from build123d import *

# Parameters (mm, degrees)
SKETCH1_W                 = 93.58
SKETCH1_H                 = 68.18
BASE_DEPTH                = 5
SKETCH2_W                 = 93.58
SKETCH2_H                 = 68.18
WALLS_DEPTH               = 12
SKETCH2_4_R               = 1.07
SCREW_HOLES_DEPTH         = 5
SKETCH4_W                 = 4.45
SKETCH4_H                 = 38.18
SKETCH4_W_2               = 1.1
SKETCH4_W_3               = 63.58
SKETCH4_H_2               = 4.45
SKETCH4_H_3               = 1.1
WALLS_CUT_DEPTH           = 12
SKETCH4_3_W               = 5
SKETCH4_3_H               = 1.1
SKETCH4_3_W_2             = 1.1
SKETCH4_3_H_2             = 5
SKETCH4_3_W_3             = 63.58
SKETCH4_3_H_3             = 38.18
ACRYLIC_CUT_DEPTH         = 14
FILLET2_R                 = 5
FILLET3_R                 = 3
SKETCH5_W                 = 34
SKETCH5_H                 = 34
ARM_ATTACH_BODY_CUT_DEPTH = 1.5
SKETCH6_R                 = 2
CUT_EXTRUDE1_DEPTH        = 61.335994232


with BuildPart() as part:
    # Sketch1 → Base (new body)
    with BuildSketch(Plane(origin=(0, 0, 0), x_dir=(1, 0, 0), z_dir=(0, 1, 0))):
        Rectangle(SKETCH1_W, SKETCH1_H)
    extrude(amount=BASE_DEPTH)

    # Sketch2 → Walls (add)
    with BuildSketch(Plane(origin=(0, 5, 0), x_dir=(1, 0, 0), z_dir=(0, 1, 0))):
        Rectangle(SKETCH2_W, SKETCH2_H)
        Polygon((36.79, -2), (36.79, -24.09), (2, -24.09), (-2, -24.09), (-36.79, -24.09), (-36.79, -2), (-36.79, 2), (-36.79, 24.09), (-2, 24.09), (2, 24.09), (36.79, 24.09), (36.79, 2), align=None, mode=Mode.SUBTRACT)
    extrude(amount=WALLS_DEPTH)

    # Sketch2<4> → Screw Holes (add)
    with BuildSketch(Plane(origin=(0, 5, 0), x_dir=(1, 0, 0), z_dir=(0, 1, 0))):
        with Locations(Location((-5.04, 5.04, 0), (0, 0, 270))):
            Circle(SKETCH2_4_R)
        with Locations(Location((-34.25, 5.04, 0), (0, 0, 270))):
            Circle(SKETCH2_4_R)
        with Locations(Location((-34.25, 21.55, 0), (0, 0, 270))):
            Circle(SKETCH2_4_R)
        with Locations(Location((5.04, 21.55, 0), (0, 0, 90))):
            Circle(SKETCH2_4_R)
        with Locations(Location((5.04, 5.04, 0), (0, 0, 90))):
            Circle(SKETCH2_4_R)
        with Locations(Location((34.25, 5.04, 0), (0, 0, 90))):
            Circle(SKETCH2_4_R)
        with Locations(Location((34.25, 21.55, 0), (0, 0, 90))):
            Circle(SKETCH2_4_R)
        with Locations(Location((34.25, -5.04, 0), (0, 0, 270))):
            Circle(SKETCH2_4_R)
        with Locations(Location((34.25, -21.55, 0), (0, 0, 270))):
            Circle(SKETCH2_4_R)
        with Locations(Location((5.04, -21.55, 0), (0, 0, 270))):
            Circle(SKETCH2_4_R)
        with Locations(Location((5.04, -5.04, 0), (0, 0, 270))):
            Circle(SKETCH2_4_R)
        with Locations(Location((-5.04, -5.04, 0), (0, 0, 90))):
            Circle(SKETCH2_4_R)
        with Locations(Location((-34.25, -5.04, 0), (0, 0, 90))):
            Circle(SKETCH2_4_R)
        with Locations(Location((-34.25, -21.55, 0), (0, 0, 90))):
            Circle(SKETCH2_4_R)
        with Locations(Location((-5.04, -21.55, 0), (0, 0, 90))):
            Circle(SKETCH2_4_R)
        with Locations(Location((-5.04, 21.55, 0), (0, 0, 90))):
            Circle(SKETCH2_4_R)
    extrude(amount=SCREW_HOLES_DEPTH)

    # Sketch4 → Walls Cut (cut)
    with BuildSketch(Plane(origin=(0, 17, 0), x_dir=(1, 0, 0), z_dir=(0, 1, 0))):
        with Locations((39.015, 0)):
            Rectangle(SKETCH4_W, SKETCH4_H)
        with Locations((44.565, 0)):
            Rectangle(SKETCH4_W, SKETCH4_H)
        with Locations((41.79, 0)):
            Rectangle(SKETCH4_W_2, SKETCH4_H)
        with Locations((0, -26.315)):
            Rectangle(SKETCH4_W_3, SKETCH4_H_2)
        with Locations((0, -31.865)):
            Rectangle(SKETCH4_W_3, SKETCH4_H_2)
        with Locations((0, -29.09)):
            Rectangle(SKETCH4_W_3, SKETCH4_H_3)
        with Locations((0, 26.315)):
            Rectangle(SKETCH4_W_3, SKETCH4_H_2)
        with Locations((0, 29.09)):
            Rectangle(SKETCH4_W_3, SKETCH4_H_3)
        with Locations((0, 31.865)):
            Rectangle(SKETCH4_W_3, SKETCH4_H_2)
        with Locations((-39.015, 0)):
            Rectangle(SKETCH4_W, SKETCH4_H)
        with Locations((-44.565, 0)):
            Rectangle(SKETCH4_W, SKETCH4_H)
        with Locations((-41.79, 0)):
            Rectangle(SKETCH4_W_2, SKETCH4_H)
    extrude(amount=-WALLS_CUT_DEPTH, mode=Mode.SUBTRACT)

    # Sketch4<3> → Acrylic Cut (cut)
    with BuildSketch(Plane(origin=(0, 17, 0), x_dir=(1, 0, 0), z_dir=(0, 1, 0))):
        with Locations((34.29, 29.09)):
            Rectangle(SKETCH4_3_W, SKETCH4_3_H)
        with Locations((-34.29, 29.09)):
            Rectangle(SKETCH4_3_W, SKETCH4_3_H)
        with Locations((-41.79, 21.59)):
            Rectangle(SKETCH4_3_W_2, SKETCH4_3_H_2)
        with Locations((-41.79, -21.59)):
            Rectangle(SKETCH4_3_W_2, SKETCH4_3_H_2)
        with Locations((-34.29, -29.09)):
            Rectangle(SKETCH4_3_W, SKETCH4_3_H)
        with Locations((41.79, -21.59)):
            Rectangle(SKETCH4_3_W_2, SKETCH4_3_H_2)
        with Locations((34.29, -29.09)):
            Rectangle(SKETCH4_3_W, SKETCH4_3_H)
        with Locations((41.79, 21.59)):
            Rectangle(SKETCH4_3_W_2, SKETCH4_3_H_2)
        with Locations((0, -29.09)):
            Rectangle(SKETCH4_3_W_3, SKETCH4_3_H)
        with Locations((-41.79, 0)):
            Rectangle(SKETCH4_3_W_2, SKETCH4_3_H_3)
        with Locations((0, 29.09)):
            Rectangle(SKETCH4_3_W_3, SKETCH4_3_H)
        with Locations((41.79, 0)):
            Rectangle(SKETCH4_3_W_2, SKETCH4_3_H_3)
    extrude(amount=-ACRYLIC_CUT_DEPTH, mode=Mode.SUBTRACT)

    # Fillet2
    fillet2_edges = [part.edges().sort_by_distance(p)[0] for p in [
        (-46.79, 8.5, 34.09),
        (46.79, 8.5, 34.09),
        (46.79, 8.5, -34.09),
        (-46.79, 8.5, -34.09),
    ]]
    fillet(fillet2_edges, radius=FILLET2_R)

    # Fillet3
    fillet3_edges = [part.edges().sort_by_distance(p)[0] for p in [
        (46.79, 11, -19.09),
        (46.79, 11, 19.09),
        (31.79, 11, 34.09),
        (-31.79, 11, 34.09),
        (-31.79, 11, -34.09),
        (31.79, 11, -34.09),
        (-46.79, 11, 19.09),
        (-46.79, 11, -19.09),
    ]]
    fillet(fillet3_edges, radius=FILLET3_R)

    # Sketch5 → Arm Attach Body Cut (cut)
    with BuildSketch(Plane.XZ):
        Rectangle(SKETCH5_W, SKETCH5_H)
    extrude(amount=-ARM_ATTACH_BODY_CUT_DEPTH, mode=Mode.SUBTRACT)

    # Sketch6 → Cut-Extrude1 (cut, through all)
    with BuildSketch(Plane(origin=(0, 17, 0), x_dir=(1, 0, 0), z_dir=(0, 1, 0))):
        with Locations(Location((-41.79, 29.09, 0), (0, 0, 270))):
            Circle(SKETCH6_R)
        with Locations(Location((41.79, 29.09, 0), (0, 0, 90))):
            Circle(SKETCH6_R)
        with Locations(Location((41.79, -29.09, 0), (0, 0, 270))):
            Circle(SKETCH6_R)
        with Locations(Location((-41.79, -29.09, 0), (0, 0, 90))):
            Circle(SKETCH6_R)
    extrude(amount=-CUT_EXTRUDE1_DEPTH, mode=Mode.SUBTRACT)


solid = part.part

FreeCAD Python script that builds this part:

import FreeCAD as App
import Part
import Sketcher

V = App.Vector


def edges_at(feature, points):
    """Names of the edges that pass closest to the given points."""
    edges = feature.Shape.Edges
    near = lambda p: min(range(len(edges)), key=lambda i: edges[i].distToShape(Part.Vertex(*p))[0])
    return sorted({f"Edge{near(p) + 1}" for p in points})


def add_polygon(sketch, points):
    """Adds a closed chain of lines whose ends are joined by coincident constraints."""
    first, n = sketch.GeometryCount, len(points)
    for a, b in zip(points, points[1:] + points[:1]):
        sketch.addGeometry(Part.LineSegment(App.Vector(*a, 0), App.Vector(*b, 0)), False)
    for i in range(n):
        sketch.addConstraint(Sketcher.Constraint("Coincident", first + i, 2, first + (i + 1) % n, 1))

doc = App.newDocument("Part")
body = doc.addObject("PartDesign::Body", "Body")

# Sketch on XZ plane
sketch1 = body.newObject("Sketcher::SketchObject", "Sketch")
sketch1.AttachmentSupport = (doc.getObject("XZ_Plane"), [""])
sketch1.MapMode = "FlatFace"
add_polygon(sketch1, [(-47, -34), (-47, 34), (47, 34), (47, -34)])  # lines 0-3
sketch1.addConstraint([
    Sketcher.Constraint("Vertical", 0),
    Sketcher.Constraint("Horizontal", 1),
    Sketcher.Constraint("Vertical", 2),
    Sketcher.Constraint("Horizontal", 3),
    Sketcher.Constraint("Symmetric", 0, 2, 2, 2, -1, 1),
    Sketcher.Constraint("DistanceX", 1, 1, 1, 2, 93.58),
    Sketcher.Constraint("DistanceY", 0, 1, 0, 2, 68.18),
])
pad1 = body.newObject("PartDesign::Pad", "Pad")
pad1.Profile = sketch1
pad1.Length = 5
pad1.Reversed = True

# Sketch on XZ plane
sketch2 = body.newObject("Sketcher::SketchObject", "Sketch001")
sketch2.AttachmentSupport = (doc.getObject("XZ_Plane"), [""])
sketch2.MapMode = "FlatFace"
sketch2.AttachmentOffset = App.Placement(V(0, 0, -5), App.Rotation())
add_polygon(sketch2, [(-47, -34), (-47, 34), (47, 34), (47, -34)])  # lines 0-3
add_polygon(sketch2, [(37, -24), (37, 24), (-37, 24), (-37, -24)])  # lines 4-7
sketch2.addConstraint([
    Sketcher.Constraint("Vertical", 0),
    Sketcher.Constraint("Horizontal", 1),
    Sketcher.Constraint("Vertical", 2),
    Sketcher.Constraint("Horizontal", 3),
    Sketcher.Constraint("Vertical", 4),
    Sketcher.Constraint("Horizontal", 5),
    Sketcher.Constraint("Vertical", 6),
    Sketcher.Constraint("Horizontal", 7),
    Sketcher.Constraint("Symmetric", 0, 2, 2, 2, -1, 1),
    Sketcher.Constraint("Symmetric", 4, 2, 6, 2, -1, 1),
    Sketcher.Constraint("DistanceX", 4, 2, 1, 2, 10.0),
    Sketcher.Constraint("DistanceY", 4, 2, 1, 2, 10.0),
    Sketcher.Constraint("DistanceX", 1, 1, 1, 2, 93.58),
    Sketcher.Constraint("DistanceY", 0, 1, 0, 2, 68.18),
])
pad2 = body.newObject("PartDesign::Pad", "Pad001")
pad2.Profile = sketch2
pad2.Length = 12
pad2.Reversed = True

# Sketch on XZ plane
sketch3 = body.newObject("Sketcher::SketchObject", "Sketch002")
sketch3.AttachmentSupport = (doc.getObject("XZ_Plane"), [""])
sketch3.MapMode = "FlatFace"
sketch3.AttachmentOffset = App.Placement(V(0, 0, -5), App.Rotation())
sketch3.addGeometry([
    Part.Circle(V(-5, -5, 0), V(0, 0, 1), 1.1),  # 0
    Part.Circle(V(-34.2, -5, 0), V(0, 0, 1), 1.1),  # 1
    Part.Circle(V(-34.2, -21.6, 0), V(0, 0, 1), 1.1),  # 2
    Part.Circle(V(5, -21.6, 0), V(0, 0, 1), 1.1),  # 3
    Part.Circle(V(5, -5, 0), V(0, 0, 1), 1.1),  # 4
    Part.Circle(V(34.2, -5, 0), V(0, 0, 1), 1.1),  # 5
    Part.Circle(V(34.2, -21.6, 0), V(0, 0, 1), 1.1),  # 6
    Part.Circle(V(34.2, 5, 0), V(0, 0, 1), 1.1),  # 7
    Part.Circle(V(34.2, 21.6, 0), V(0, 0, 1), 1.1),  # 8
    Part.Circle(V(5, 21.6, 0), V(0, 0, 1), 1.1),  # 9
    Part.Circle(V(5, 5, 0), V(0, 0, 1), 1.1),  # 10
    Part.Circle(V(-5, 5, 0), V(0, 0, 1), 1.1),  # 11
    Part.Circle(V(-34.2, 5, 0), V(0, 0, 1), 1.1),  # 12
    Part.Circle(V(-34.2, 21.6, 0), V(0, 0, 1), 1.1),  # 13
    Part.Circle(V(-5, 21.6, 0), V(0, 0, 1), 1.1),  # 14
    Part.Circle(V(-5, -21.6, 0), V(0, 0, 1), 1.1),  # 15
], False)
sketch3.addConstraint([
    Sketcher.Constraint("Equal", 0, 1),
    Sketcher.Constraint("Equal", 1, 2),
    Sketcher.Constraint("Equal", 2, 3),
    Sketcher.Constraint("Equal", 3, 4),
    Sketcher.Constraint("Equal", 4, 5),
    Sketcher.Constraint("Equal", 5, 6),
    Sketcher.Constraint("Equal", 6, 7),
    Sketcher.Constraint("Equal", 7, 8),
    Sketcher.Constraint("Equal", 8, 9),
    Sketcher.Constraint("Equal", 9, 10),
    Sketcher.Constraint("Equal", 10, 11),
    Sketcher.Constraint("Equal", 11, 12),
    Sketcher.Constraint("Equal", 12, 13),
    Sketcher.Constraint("Equal", 13, 14),
    Sketcher.Constraint("Equal", 14, 15),
    Sketcher.Constraint("Symmetric", 1, 3, 7, 3, -1, 1),
    Sketcher.Constraint("Symmetric", 2, 3, 8, 3, -1, 1),
    Sketcher.Constraint("Symmetric", 0, 3, 10, 3, -1, 1),
    Sketcher.Constraint("Symmetric", 4, 3, 11, 3, -1, 1),
    Sketcher.Constraint("Symmetric", 5, 3, 12, 3, -1, 1),
    Sketcher.Constraint("Symmetric", 6, 3, 13, 3, -1, 1),
    Sketcher.Constraint("Symmetric", 3, 3, 14, 3, -1, 1),
    Sketcher.Constraint("Symmetric", 9, 3, 15, 3, -1, 1),
    Sketcher.Constraint("Symmetric", 0, 3, 4, 3, -2),
    Sketcher.Constraint("Symmetric", 1, 3, 5, 3, -2),
    Sketcher.Constraint("Symmetric", 2, 3, 6, 3, -2),
    Sketcher.Constraint("Symmetric", 9, 3, 14, 3, -2),
    Sketcher.Constraint("Horizontal", 0, 3, 1, 3),
    Sketcher.Constraint("Horizontal", 2, 3, 3, 3),
    Sketcher.Constraint("Vertical", 1, 3, 2, 3),
    Sketcher.Constraint("Vertical", 3, 3, 4, 3),
    Sketcher.Constraint("Diameter", 0, 2.14),
    Sketcher.Constraint("DistanceX", 1, 3, 5, 3, 68.5),
    Sketcher.Constraint("DistanceY", 6, 3, 8, 3, 43.1),
    Sketcher.Constraint("DistanceX", 0, 3, -1, 1, 5.04),
    Sketcher.Constraint("DistanceY", 0, 3, -1, 1, 5.04),
])
pad3 = body.newObject("PartDesign::Pad", "Pad002")
pad3.Profile = sketch3
pad3.Length = 5
pad3.Reversed = True

# Sketch on XZ plane
sketch4 = body.newObject("Sketcher::SketchObject", "Sketch003")
sketch4.AttachmentSupport = (doc.getObject("XZ_Plane"), [""])
sketch4.MapMode = "FlatFace"
sketch4.AttachmentOffset = App.Placement(V(0, 0, -17), App.Rotation())
add_polygon(sketch4, [(37, -19), (37, 19), (47, 19), (47, -19)])  # lines 0-3
add_polygon(sketch4, [(-32, 24), (-32, 34), (32, 34), (32, 24)])  # lines 4-7
add_polygon(sketch4, [(-32, -24), (32, -24), (32, -34), (-32, -34)])  # lines 8-11
add_polygon(sketch4, [(-37, 19), (-37, -19), (-47, -19), (-47, 19)])  # lines 12-15
sketch4.addConstraint([
    Sketcher.Constraint("Vertical", 0),
    Sketcher.Constraint("Horizontal", 1),
    Sketcher.Constraint("Vertical", 2),
    Sketcher.Constraint("Horizontal", 3),
    Sketcher.Constraint("Vertical", 4),
    Sketcher.Constraint("Horizontal", 5),
    Sketcher.Constraint("Vertical", 6),
    Sketcher.Constraint("Horizontal", 7),
    Sketcher.Constraint("Horizontal", 8),
    Sketcher.Constraint("Vertical", 9),
    Sketcher.Constraint("Horizontal", 10),
    Sketcher.Constraint("Vertical", 11),
    Sketcher.Constraint("Vertical", 12),
    Sketcher.Constraint("Horizontal", 13),
    Sketcher.Constraint("Vertical", 14),
    Sketcher.Constraint("Horizontal", 15),
    Sketcher.Constraint("Symmetric", 7, 2, 8, 2, -1, 1),
    Sketcher.Constraint("Symmetric", 5, 2, 10, 2, -1, 1),
    Sketcher.Constraint("Symmetric", 0, 2, 12, 2, -1, 1),
    Sketcher.Constraint("Symmetric", 2, 2, 14, 2, -1, 1),
    Sketcher.Constraint("Horizontal", 3, 2, 12, 2),
    Sketcher.Constraint("Vertical", 6, 2, 8, 2),
    Sketcher.Constraint("Equal", 15, 4),
    Sketcher.Constraint("DistanceX", 1, 1, 1, 2, 10.0),
    Sketcher.Constraint("DistanceY", 0, 2, 4, 2, 15.0),
    Sketcher.Constraint("DistanceX", 5, 2, 0, 2, 5.0),
    Sketcher.Constraint("DistanceX", 5, 1, 5, 2, 63.58),
    Sketcher.Constraint("DistanceY", 0, 1, 0, 2, 38.18),
])
pocket1 = body.newObject("PartDesign::Pocket", "Pocket")
pocket1.Profile = sketch4
pocket1.Length = 12
pocket1.Reversed = True

# Sketch on XZ plane
sketch5 = body.newObject("Sketcher::SketchObject", "Sketch004")
sketch5.AttachmentSupport = (doc.getObject("XZ_Plane"), [""])
sketch5.MapMode = "FlatFace"
sketch5.AttachmentOffset = App.Placement(V(0, 0, -17), App.Rotation())
add_polygon(sketch5, [(36.8, -28.5), (36.8, -29.6), (-36.8, -29.6), (-36.8, -28.5)])  # lines 0-3
add_polygon(sketch5, [(-42.3, -24.1), (-42.3, 24.1), (-41.2, 24.1), (-41.2, -24.1)])  # lines 4-7
add_polygon(sketch5, [(-36.8, 28.5), (-36.8, 29.6), (36.8, 29.6), (36.8, 28.5)])  # lines 8-11
add_polygon(sketch5, [(41.2, 24.1), (42.3, 24.1), (42.3, -24.1), (41.2, -24.1)])  # lines 12-15
sketch5.addConstraint([
    Sketcher.Constraint("Vertical", 0),
    Sketcher.Constraint("Horizontal", 1),
    Sketcher.Constraint("Vertical", 2),
    Sketcher.Constraint("Horizontal", 3),
    Sketcher.Constraint("Vertical", 4),
    Sketcher.Constraint("Horizontal", 5),
    Sketcher.Constraint("Vertical", 6),
    Sketcher.Constraint("Horizontal", 7),
    Sketcher.Constraint("Vertical", 8),
    Sketcher.Constraint("Horizontal", 9),
    Sketcher.Constraint("Vertical", 10),
    Sketcher.Constraint("Horizontal", 11),
    Sketcher.Constraint("Horizontal", 12),
    Sketcher.Constraint("Vertical", 13),
    Sketcher.Constraint("Horizontal", 14),
    Sketcher.Constraint("Vertical", 15),
    Sketcher.Constraint("Symmetric", 0, 2, 8, 2, -1, 1),
    Sketcher.Constraint("Symmetric", 2, 2, 10, 2, -1, 1),
    Sketcher.Constraint("Symmetric", 7, 2, 12, 2, -1, 1),
    Sketcher.Constraint("Symmetric", 5, 2, 14, 2, -1, 1),
    Sketcher.Constraint("Horizontal", 5, 2, 12, 2),
    Sketcher.Constraint("Vertical", 2, 2, 8, 2),
    Sketcher.Constraint("Equal", 14, 0),
    Sketcher.Constraint("DistanceX", 5, 1, 5, 2, 1.1),
    Sketcher.Constraint("DistanceX", 1, 2, 1, 1, 73.58),
    Sketcher.Constraint("DistanceY", 4, 1, 4, 2, 48.18),
    Sketcher.Constraint("DistanceY", 0, 2, -1, 1, 29.64),
    Sketcher.Constraint("DistanceX", 4, 2, -1, 1, 42.34),
])
pocket2 = body.newObject("PartDesign::Pocket", "Pocket001")
pocket2.Profile = sketch5
pocket2.Length = 14
pocket2.Reversed = True
doc.recompute()

fillet = body.newObject("PartDesign::Fillet", "Fillet")
fillet.Base = (pocket2, edges_at(pocket2, [
    (-46.79, 8.5, 34.09),
    (46.79, 8.5, 34.09),
    (46.79, 8.5, -34.09),
    (-46.79, 8.5, -34.09),
]))
fillet.Radius = 5
doc.recompute()

fillet2 = body.newObject("PartDesign::Fillet", "Fillet001")
fillet2.Base = (fillet, edges_at(fillet, [
    (46.79, 11, -19.09),
    (46.79, 11, 19.09),
    (31.79, 11, 34.09),
    (-31.79, 11, 34.09),
    (-31.79, 11, -34.09),
    (31.79, 11, -34.09),
    (-46.79, 11, 19.09),
    (-46.79, 11, -19.09),
]))
fillet2.Radius = 3

# Sketch on XZ plane
sketch6 = body.newObject("Sketcher::SketchObject", "Sketch005")
sketch6.AttachmentSupport = (doc.getObject("XZ_Plane"), [""])
sketch6.MapMode = "FlatFace"
add_polygon(sketch6, [(-17, 17), (-17, -17), (17, -17), (17, 17)])  # lines 0-3
sketch6.addConstraint([
    Sketcher.Constraint("Vertical", 0),
    Sketcher.Constraint("Horizontal", 1),
    Sketcher.Constraint("Vertical", 2),
    Sketcher.Constraint("Horizontal", 3),
    Sketcher.Constraint("Symmetric", 0, 2, 2, 2, -1, 1),
    Sketcher.Constraint("Equal", 3, 0),
    Sketcher.Constraint("DistanceX", 1, 1, 1, 2, 34.0),
])
pocket3 = body.newObject("PartDesign::Pocket", "Pocket002")
pocket3.Profile = sketch6
pocket3.Length = 1.5

# Sketch on XZ plane
sketch7 = body.newObject("Sketcher::SketchObject", "Sketch006")
sketch7.AttachmentSupport = (doc.getObject("XZ_Plane"), [""])
sketch7.MapMode = "FlatFace"
sketch7.AttachmentOffset = App.Placement(V(0, 0, -17), App.Rotation())
sketch7.addGeometry([
    Part.Circle(V(-41.8, -29.1, 0), V(0, 0, 1), 2),
    Part.Circle(V(41.8, -29.1, 0), V(0, 0, 1), 2),
    Part.Circle(V(41.8, 29.1, 0), V(0, 0, 1), 2),
    Part.Circle(V(-41.8, 29.1, 0), V(0, 0, 1), 2),
], False)
sketch7.addConstraint([
    Sketcher.Constraint("Equal", 0, 1),
    Sketcher.Constraint("Equal", 1, 2),
    Sketcher.Constraint("Equal", 2, 3),
    Sketcher.Constraint("Symmetric", 0, 3, 2, 3, -1, 1),
    Sketcher.Constraint("Symmetric", 1, 3, 3, 3, -1, 1),
    Sketcher.Constraint("Symmetric", 0, 3, 1, 3, -2),
    Sketcher.Constraint("Diameter", 0, 4.0),
    Sketcher.Constraint("DistanceX", 0, 3, -1, 1, 41.79),
    Sketcher.Constraint("DistanceY", 0, 3, -1, 1, 29.09),
])
pocket4 = body.newObject("PartDesign::Pocket", "Pocket003")
pocket4.Profile = sketch7
pocket4.Type = "ThroughAll"
pocket4.Reversed = True

doc.recompute()
